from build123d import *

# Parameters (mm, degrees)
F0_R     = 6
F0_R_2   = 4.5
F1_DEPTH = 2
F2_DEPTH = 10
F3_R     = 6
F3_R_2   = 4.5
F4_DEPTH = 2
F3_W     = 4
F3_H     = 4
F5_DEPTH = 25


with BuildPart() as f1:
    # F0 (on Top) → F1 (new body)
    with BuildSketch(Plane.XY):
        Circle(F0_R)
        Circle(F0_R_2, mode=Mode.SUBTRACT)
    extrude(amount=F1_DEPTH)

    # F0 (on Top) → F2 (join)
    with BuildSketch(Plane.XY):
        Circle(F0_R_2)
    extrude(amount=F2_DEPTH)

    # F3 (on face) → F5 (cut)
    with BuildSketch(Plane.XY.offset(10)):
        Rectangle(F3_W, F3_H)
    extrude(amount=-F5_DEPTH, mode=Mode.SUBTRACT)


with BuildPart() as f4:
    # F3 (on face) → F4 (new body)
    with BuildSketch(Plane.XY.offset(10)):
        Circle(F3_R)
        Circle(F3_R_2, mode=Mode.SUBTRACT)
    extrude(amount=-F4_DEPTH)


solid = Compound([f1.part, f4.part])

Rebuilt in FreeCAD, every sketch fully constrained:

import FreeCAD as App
import Part
import Sketcher

V = App.Vector


def add_polygon(sketch, points):
    """Adds a closed chain of lines whose ends are joined by coincident constraints."""
    first, n = sketch.GeometryCount, len(points)
    for a, b in zip(points, points[1:] + points[:1]):
        sketch.addGeometry(Part.LineSegment(App.Vector(*a, 0), App.Vector(*b, 0)), False)
    for i in range(n):
        sketch.addConstraint(Sketcher.Constraint("Coincident", first + i, 2, first + (i + 1) % n, 1))

doc = App.newDocument("Part")
body = doc.addObject("PartDesign::Body", "Body")

# Sketch on XY plane
sketch1 = body.newObject("Sketcher::SketchObject", "Sketch")
sketch1.AttachmentSupport = (doc.getObject("XY_Plane"), [""])
sketch1.MapMode = "FlatFace"
sketch1.addGeometry([
    Part.Circle(V(0, 0, 0), V(0, 0, 1), 6),
    Part.Circle(V(0, 0, 0), V(0, 0, 1), 4.5),
], False)
sketch1.addConstraint([
    Sketcher.Constraint("Coincident", 0, 3, -1, 1),
    Sketcher.Constraint("Coincident", 1, 3, -1, 1),
    Sketcher.Constraint("Diameter", 0, 12.0),
    Sketcher.Constraint("Diameter", 1, 9.0),
])
pad1 = body.newObject("PartDesign::Pad", "Pad")
pad1.Profile = sketch1
pad1.Length = 2

# Sketch on XY plane
sketch2 = body.newObject("Sketcher::SketchObject", "Sketch001")
sketch2.AttachmentSupport = (doc.getObject("XY_Plane"), [""])
sketch2.MapMode = "FlatFace"
sketch2.addGeometry(Part.Circle(V(0, 0, 0), V(0, 0, 1), 4.5), False)
sketch2.addConstraint([
    Sketcher.Constraint("Coincident", 0, 3, -1, 1),
    Sketcher.Constraint("Diameter", 0, 9.0),
])
pad2 = body.newObject("PartDesign::Pad", "Pad001")
pad2.Profile = sketch2
pad2.Length = 10

# Sketch on XY plane
sketch3 = body.newObject("Sketcher::SketchObject", "Sketch002")
sketch3.AttachmentSupport = (doc.getObject("XY_Plane"), [""])
sketch3.MapMode = "FlatFace"
sketch3.AttachmentOffset = App.Placement(V(0, 0, 10), App.Rotation())
add_polygon(sketch3, [(-2, 2), (-2, -2), (2, -2), (2, 2)])  # lines 0-3
sketch3.addConstraint([
    Sketcher.Constraint("Vertical", 0),
    Sketcher.Constraint("Horizontal", 1),
    Sketcher.Constraint("Vertical", 2),
    Sketcher.Constraint("Horizontal", 3),
    Sketcher.Constraint("Symmetric", 0, 2, 2, 2, -1, 1),
    Sketcher.Constraint("Equal", 3, 0),
    Sketcher.Constraint("DistanceX", 1, 1, 1, 2, 4.0),
])
pocket1 = body.newObject("PartDesign::Pocket", "Pocket")
pocket1.Profile = sketch3
pocket1.Length = 25
body2 = doc.addObject("PartDesign::Body", "Body001")

# Sketch on XY plane
sketch4 = body2.newObject("Sketcher::SketchObject", "Sketch003")
sketch4.AttachmentSupport = (doc.getObject("XY_Plane001"), [""])
sketch4.MapMode = "FlatFace"
sketch4.AttachmentOffset = App.Placement(V(0, 0, 10), App.Rotation())
sketch4.addGeometry([
    Part.Circle(V(0, 0, 0), V(0, 0, 1), 6),
    Part.Circle(V(0, 0, 0), V(0, 0, 1), 4.5),
], False)
sketch4.addConstraint([
    Sketcher.Constraint("Coincident", 0, 3, -1, 1),
    Sketcher.Constraint("Coincident", 1, 3, -1, 1),
    Sketcher.Constraint("Diameter", 0, 12.0),
    Sketcher.Constraint("Diameter", 1, 9.0),
])
pad3 = body2.newObject("PartDesign::Pad", "Pad002")
pad3.Profile = sketch4
pad3.Length = 2
pad3.Reversed = True

doc.recompute()
